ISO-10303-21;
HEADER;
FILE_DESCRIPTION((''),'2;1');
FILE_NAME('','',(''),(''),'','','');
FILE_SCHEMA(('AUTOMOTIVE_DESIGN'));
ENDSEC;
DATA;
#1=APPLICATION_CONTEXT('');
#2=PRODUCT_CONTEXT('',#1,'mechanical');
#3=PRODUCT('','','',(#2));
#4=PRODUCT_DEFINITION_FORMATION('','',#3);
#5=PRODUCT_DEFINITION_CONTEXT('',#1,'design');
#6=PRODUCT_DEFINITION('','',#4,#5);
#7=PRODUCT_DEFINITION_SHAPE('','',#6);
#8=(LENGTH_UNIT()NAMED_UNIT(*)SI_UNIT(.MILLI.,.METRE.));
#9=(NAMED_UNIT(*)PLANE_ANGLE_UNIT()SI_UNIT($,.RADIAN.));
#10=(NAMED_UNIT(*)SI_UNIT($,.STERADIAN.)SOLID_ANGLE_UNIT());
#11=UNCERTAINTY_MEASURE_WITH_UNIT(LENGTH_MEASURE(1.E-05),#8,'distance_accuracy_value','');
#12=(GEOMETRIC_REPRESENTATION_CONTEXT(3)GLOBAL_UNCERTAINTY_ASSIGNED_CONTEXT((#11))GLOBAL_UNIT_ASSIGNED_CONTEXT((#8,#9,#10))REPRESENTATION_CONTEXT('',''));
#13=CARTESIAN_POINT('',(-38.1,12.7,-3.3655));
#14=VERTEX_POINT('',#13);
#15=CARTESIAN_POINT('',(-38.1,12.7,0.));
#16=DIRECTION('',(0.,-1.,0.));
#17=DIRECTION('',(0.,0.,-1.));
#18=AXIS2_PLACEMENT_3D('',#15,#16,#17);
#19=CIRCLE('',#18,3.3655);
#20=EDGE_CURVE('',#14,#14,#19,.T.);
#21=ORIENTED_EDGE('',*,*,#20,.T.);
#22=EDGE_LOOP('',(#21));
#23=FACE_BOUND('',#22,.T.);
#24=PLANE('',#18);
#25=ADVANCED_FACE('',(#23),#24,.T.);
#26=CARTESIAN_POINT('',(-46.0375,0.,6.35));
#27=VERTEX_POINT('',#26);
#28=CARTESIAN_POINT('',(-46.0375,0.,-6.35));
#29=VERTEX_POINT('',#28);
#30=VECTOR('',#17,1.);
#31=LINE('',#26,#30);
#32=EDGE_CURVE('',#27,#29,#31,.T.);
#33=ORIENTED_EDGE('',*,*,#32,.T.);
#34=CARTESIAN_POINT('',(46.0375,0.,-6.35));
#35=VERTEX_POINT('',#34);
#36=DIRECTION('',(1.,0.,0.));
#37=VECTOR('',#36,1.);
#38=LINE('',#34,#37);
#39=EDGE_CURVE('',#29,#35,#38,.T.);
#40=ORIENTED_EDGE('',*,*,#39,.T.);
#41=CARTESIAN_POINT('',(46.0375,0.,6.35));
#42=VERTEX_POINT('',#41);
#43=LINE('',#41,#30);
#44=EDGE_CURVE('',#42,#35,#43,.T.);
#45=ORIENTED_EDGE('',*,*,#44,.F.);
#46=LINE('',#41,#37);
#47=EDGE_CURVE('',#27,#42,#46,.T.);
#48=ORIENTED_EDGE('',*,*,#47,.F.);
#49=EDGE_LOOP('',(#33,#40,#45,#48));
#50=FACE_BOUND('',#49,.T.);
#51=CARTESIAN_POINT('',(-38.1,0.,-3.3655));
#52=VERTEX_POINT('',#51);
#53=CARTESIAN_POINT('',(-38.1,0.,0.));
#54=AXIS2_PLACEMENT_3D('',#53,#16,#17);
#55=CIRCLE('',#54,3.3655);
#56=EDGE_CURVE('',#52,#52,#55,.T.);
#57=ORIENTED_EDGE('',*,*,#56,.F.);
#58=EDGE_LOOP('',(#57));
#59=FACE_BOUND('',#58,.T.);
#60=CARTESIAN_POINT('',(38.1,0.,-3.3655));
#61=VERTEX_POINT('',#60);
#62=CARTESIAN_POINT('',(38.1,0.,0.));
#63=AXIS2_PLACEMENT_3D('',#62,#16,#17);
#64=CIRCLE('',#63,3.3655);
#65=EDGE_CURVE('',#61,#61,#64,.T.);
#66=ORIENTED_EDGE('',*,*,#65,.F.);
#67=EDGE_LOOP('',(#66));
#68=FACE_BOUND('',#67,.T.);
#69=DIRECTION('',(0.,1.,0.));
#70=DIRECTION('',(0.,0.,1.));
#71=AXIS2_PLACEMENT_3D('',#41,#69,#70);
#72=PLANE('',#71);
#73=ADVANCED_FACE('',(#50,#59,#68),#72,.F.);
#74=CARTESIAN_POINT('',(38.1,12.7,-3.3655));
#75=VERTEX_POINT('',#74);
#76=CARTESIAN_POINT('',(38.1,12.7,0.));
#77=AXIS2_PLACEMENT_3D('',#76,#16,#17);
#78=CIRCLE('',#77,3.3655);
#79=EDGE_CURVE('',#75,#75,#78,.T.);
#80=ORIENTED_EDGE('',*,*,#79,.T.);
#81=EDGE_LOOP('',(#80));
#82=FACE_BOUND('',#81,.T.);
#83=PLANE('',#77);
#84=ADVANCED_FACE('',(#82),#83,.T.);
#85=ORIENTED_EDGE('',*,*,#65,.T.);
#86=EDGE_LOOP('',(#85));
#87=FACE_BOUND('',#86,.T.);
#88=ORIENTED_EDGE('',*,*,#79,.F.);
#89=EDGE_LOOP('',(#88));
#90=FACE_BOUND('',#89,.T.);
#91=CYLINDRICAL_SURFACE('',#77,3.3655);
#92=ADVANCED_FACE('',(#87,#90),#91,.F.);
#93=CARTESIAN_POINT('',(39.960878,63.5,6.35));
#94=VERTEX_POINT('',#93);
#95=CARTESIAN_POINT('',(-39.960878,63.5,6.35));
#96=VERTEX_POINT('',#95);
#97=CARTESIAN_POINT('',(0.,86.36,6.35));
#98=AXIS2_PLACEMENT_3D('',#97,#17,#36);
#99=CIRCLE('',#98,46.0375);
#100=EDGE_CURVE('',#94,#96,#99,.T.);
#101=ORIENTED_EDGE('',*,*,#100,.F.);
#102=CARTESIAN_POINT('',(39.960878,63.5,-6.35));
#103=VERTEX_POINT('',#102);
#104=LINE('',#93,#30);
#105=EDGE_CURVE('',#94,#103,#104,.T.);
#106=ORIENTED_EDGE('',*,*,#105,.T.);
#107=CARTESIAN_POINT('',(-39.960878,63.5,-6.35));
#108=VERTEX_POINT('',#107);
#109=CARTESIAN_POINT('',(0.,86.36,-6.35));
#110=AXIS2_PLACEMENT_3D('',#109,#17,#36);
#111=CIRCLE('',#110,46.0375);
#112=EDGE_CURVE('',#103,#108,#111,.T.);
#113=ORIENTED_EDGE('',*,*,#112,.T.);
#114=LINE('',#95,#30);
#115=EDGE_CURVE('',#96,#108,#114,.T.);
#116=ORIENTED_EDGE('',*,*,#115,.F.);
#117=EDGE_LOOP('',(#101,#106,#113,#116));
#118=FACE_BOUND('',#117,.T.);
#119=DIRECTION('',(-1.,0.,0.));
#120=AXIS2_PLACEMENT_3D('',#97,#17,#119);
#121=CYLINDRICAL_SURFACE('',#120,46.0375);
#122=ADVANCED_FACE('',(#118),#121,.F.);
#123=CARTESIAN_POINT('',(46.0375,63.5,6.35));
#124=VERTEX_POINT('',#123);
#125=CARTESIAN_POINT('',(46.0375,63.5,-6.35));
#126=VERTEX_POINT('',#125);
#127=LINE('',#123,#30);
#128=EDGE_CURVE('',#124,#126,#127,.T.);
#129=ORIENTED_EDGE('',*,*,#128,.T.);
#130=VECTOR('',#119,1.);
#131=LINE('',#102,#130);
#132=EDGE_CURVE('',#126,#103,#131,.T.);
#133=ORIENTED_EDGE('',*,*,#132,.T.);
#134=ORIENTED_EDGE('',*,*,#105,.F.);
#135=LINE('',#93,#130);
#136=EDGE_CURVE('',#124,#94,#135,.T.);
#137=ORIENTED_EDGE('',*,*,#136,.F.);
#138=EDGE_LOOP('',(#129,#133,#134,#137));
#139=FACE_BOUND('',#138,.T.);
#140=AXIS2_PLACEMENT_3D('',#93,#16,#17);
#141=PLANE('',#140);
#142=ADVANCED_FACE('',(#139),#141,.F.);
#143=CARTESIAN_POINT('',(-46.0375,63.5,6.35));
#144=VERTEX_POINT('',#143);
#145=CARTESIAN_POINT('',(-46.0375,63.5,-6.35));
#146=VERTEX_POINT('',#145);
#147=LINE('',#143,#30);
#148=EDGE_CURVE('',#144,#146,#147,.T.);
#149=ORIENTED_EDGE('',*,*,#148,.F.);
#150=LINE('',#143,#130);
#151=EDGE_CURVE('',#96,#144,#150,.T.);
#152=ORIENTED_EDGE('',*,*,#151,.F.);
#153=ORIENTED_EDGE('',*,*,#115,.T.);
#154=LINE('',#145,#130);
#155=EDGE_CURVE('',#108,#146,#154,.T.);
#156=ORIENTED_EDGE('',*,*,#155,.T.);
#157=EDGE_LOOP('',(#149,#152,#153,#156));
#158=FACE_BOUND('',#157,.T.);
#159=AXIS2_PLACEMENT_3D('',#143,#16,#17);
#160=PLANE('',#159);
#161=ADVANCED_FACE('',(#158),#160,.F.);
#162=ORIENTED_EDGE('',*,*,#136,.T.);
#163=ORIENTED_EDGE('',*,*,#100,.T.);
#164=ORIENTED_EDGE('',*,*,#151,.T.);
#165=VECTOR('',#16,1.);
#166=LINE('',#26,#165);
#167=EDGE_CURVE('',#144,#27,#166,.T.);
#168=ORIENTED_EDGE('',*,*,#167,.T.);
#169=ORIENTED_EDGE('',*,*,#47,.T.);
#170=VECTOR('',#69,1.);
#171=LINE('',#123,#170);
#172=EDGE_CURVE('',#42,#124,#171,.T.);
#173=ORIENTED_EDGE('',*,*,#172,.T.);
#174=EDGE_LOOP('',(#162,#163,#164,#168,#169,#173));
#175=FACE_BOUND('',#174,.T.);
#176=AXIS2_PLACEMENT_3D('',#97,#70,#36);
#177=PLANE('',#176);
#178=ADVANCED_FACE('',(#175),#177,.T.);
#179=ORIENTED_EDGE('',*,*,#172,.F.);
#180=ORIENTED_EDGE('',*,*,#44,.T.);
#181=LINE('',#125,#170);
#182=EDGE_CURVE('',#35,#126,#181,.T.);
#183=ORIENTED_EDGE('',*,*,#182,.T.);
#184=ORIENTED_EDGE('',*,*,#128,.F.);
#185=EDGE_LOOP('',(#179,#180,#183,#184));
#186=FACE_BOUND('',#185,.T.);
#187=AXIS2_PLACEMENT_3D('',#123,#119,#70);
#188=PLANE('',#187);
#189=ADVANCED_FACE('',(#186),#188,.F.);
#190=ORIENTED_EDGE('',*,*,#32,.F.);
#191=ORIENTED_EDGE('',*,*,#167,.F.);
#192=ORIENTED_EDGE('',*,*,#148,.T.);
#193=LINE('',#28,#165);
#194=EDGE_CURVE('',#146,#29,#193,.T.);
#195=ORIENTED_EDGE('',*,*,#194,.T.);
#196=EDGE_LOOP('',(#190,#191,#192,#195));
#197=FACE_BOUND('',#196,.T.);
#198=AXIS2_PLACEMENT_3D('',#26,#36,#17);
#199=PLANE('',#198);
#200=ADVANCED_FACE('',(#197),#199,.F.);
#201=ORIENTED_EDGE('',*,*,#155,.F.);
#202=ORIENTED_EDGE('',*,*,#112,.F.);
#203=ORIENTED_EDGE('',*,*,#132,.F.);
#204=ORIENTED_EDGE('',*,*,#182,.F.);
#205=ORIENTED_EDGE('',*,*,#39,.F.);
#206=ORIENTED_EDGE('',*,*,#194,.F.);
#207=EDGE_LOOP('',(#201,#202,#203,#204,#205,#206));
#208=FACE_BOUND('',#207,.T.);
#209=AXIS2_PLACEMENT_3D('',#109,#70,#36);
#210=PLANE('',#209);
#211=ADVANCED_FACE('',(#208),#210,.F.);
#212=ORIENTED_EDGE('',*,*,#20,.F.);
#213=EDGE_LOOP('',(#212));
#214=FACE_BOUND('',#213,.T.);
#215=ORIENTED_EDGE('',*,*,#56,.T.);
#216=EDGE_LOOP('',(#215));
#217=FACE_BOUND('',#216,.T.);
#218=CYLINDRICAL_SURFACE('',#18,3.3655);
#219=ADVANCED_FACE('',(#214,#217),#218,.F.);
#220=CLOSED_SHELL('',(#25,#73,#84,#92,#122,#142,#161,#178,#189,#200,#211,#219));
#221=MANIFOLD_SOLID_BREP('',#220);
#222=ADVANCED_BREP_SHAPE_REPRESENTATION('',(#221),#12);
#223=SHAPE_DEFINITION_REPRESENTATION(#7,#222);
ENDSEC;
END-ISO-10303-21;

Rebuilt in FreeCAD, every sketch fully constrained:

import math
import FreeCAD as App
import Part
import Sketcher
from FreeCAD import Vector
Q = App.Units.Quantity

doc = App.newDocument("Part")
body = doc.addObject("PartDesign::Body", "Body")

# Sketch on XY plane
sketch1 = doc.addObject("Sketcher::SketchObject", "Sketch")
body.addObject(sketch1)
sketch1.AttachmentSupport = (doc.XY_Plane, [""])
sketch1.MapMode = "FlatFace"
sketch1.addGeometry(Part.LineSegment(Vector(-40, 64, 0), Vector(-46, 64, 0)), False)
sketch1.addGeometry(Part.LineSegment(Vector(-46, 64, 0), Vector(-46, 0, 0)), False)
sketch1.addGeometry(Part.LineSegment(Vector(-46, 0, 0), Vector(46, 0, 0)), False)
sketch1.addGeometry(Part.LineSegment(Vector(46, 0, 0), Vector(46, 64, 0)), False)
sketch1.addGeometry(Part.LineSegment(Vector(46, 64, 0), Vector(40, 64, 0)), False)
sketch1.addGeometry(Part.ArcOfCircle(Part.Circle(Vector(0, 86, 0), Vector(0, 0, 1), 46), math.radians(-150), math.radians(-30)), False)
sketch1.addConstraint(Sketcher.Constraint("Coincident", 0, 2, 1, 1))
sketch1.addConstraint(Sketcher.Constraint("Coincident", 1, 2, 2, 1))
sketch1.addConstraint(Sketcher.Constraint("Coincident", 2, 2, 3, 1))
sketch1.addConstraint(Sketcher.Constraint("Coincident", 3, 2, 4, 1))
sketch1.addConstraint(Sketcher.Constraint("Coincident", 4, 2, 5, 2))
sketch1.addConstraint(Sketcher.Constraint("Coincident", 5, 1, 0, 1))
sketch1.addConstraint(Sketcher.Constraint("Horizontal", 0))
sketch1.addConstraint(Sketcher.Constraint("Vertical", 1))
sketch1.addConstraint(Sketcher.Constraint("Horizontal", 2))
sketch1.addConstraint(Sketcher.Constraint("Vertical", 3))
sketch1.addConstraint(Sketcher.Constraint("Horizontal", 4))
sketch1.addConstraint(Sketcher.Constraint("Symmetric", 1, 2, 2, 2, -1, 1))
sketch1.addConstraint(Sketcher.Constraint("Symmetric", 4, 2, 5, 1, -2))
sketch1.addConstraint(Sketcher.Constraint("DistanceY", 1, 2, 1, 1, Q("2.5 in")))
sketch1.addConstraint(Sketcher.Constraint("Radius", 5, Q("1.8125 in")))
sketch1.addConstraint(Sketcher.Constraint("DistanceY", -1, 1, 5, 3, Q("3.4 in")))
sketch1.addConstraint(Sketcher.Constraint("DistanceX", 2, 1, 2, 2, Q("3.625 in")))
pad1 = doc.addObject("PartDesign::Pad", "Pad")
body.addObject(pad1)
pad1.Profile = sketch1
pad1.Length = Q("0.5 in")
pad1.Midplane = True

# Sketch on XZ plane
sketch2 = doc.addObject("Sketcher::SketchObject", "Sketch001")
body.addObject(sketch2)
sketch2.AttachmentSupport = (doc.XZ_Plane, [""])
sketch2.MapMode = "FlatFace"
sketch2.addGeometry(Part.Circle(Vector(-38.1, 0, 0), Vector(0, 0, 1), 3.4), False)
sketch2.addGeometry(Part.Circle(Vector(38.1, 0, 0), Vector(0, 0, 1), 3.4), False)
sketch2.addConstraint(Sketcher.Constraint("Equal", 0, 1))
sketch2.addConstraint(Sketcher.Constraint("Symmetric", 0, 3, 1, 3, -1, 1))
sketch2.addConstraint(Sketcher.Constraint("PointOnObject", 0, 3, -1))
sketch2.addConstraint(Sketcher.Constraint("Diameter", 0, Q("0.265 in")))
sketch2.addConstraint(Sketcher.Constraint("DistanceX", 0, 3, 1, 3, Q("3 in")))
pocket1 = doc.addObject("PartDesign::Pocket", "Pocket")
body.addObject(pocket1)
pocket1.Profile = sketch2
pocket1.Length = Q("0.5 in")

doc.recompute()
